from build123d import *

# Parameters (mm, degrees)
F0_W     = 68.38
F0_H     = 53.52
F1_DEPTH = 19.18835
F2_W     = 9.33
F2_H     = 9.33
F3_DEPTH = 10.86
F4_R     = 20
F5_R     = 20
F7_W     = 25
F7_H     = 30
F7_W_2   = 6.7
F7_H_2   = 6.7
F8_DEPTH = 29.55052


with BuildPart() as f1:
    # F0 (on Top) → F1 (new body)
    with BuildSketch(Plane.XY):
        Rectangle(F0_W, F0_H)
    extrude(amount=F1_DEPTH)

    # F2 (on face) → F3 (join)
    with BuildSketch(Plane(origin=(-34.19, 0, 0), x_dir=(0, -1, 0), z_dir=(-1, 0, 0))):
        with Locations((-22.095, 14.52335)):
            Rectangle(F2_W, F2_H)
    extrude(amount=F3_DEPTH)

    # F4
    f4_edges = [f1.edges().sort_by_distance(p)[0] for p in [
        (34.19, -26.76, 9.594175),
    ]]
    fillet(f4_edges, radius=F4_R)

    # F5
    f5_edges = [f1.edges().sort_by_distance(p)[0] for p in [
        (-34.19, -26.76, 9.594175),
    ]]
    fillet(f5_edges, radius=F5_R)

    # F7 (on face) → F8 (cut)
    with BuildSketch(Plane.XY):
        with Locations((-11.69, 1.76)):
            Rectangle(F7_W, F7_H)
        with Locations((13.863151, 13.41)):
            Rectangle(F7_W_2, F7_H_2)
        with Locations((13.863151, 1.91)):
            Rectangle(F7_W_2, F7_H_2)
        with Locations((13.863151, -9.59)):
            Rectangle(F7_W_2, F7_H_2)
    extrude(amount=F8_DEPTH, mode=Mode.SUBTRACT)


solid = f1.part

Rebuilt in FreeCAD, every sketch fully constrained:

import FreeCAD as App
import Part
import Sketcher

V = App.Vector


def edges_at(feature, points):
    """Names of the edges that pass closest to the given points."""
    edges = feature.Shape.Edges
    near = lambda p: min(range(len(edges)), key=lambda i: edges[i].distToShape(Part.Vertex(*p))[0])
    return sorted({f"Edge{near(p) + 1}" for p in points})

doc = App.newDocument("Part")
body = doc.addObject("PartDesign::Body", "Body")

# Sketch on XY plane
sketch1 = body.newObject("Sketcher::SketchObject", "Sketch")
sketch1.AttachmentSupport = (doc.getObject("XY_Plane"), [""])
sketch1.MapMode = "FlatFace"
sketch1.addGeometry(Part.LineSegment(V(-34, 27, 0), V(-34, -27, 0)), False)
sketch1.addGeometry(Part.LineSegment(V(-34, -27, 0), V(34, -27, 0)), False)
sketch1.addGeometry(Part.LineSegment(V(34, -27, 0), V(34, 27, 0)), False)
sketch1.addGeometry(Part.LineSegment(V(34, 27, 0), V(-34, 27, 0)), False)
sketch1.addConstraint(Sketcher.Constraint("Coincident", 0, 2, 1, 1))
sketch1.addConstraint(Sketcher.Constraint("Coincident", 1, 2, 2, 1))
sketch1.addConstraint(Sketcher.Constraint("Coincident", 2, 2, 3, 1))
sketch1.addConstraint(Sketcher.Constraint("Coincident", 3, 2, 0, 1))
sketch1.addConstraint(Sketcher.Constraint("Vertical", 0))
sketch1.addConstraint(Sketcher.Constraint("Horizontal", 1))
sketch1.addConstraint(Sketcher.Constraint("Vertical", 2))
sketch1.addConstraint(Sketcher.Constraint("Horizontal", 3))
sketch1.addConstraint(Sketcher.Constraint("Symmetric", 0, 2, 2, 2, -1, 1))
sketch1.addConstraint(Sketcher.Constraint("DistanceX", 1, 1, 1, 2, 68.38))
sketch1.addConstraint(Sketcher.Constraint("DistanceY", 0, 2, 0, 1, 53.52))
pad1 = body.newObject("PartDesign::Pad", "Pad")
pad1.Profile = sketch1
pad1.Length = 19.18835

# Sketch on YZ plane
sketch2 = body.newObject("Sketcher::SketchObject", "Sketch001")
sketch2.AttachmentSupport = (doc.getObject("YZ_Plane"), [""])
sketch2.MapMode = "FlatFace"
sketch2.AttachmentOffset = App.Placement(V(0, 0, -34.19), App.Rotation())
sketch2.addGeometry(Part.LineSegment(V(27, 19, 0), V(27, 10, 0)), False)
sketch2.addGeometry(Part.LineSegment(V(27, 10, 0), V(17, 10, 0)), False)
sketch2.addGeometry(Part.LineSegment(V(17, 10, 0), V(17, 19, 0)), False)
sketch2.addGeometry(Part.LineSegment(V(17, 19, 0), V(27, 19, 0)), False)
sketch2.addConstraint(Sketcher.Constraint("Coincident", 0, 2, 1, 1))
sketch2.addConstraint(Sketcher.Constraint("Coincident", 1, 2, 2, 1))
sketch2.addConstraint(Sketcher.Constraint("Coincident", 2, 2, 3, 1))
sketch2.addConstraint(Sketcher.Constraint("Coincident", 3, 2, 0, 1))
sketch2.addConstraint(Sketcher.Constraint("Vertical", 0))
sketch2.addConstraint(Sketcher.Constraint("Horizontal", 1))
sketch2.addConstraint(Sketcher.Constraint("Vertical", 2))
sketch2.addConstraint(Sketcher.Constraint("Horizontal", 3))
sketch2.addConstraint(Sketcher.Constraint("Equal", 3, 0))
sketch2.addConstraint(Sketcher.Constraint("DistanceX", 1, 2, 1, 1, 9.33))
sketch2.addConstraint(Sketcher.Constraint("DistanceX", -1, 1, 0, 2, 26.76))
sketch2.addConstraint(Sketcher.Constraint("DistanceY", -1, 1, 0, 2, 9.85835))
pad2 = body.newObject("PartDesign::Pad", "Pad001")
pad2.Profile = sketch2
pad2.Length = 10.86
pad2.Reversed = True
doc.recompute()

fillet = body.newObject("PartDesign::Fillet", "Fillet")
fillet.Base = (pad2, edges_at(pad2, [(34.19, -26.76, 9.594)]))
fillet.Radius = 20
doc.recompute()

fillet2 = body.newObject("PartDesign::Fillet", "Fillet001")
fillet2.Base = (fillet, edges_at(fillet, [(-34.19, -26.76, 9.594)]))
fillet2.Radius = 20

# Sketch on XY plane
sketch3 = body.newObject("Sketcher::SketchObject", "Sketch002")
sketch3.AttachmentSupport = (doc.getObject("XY_Plane"), [""])
sketch3.MapMode = "FlatFace"
sketch3.addGeometry(Part.LineSegment(V(-24, 17, 0), V(-24, -13, 0)), False)
sketch3.addGeometry(Part.LineSegment(V(-24, -13, 0), V(1, -13, 0)), False)
sketch3.addGeometry(Part.LineSegment(V(1, -13, 0), V(1, 17, 0)), False)
sketch3.addGeometry(Part.LineSegment(V(1, 17, 0), V(-24, 17, 0)), False)
sketch3.addGeometry(Part.LineSegment(V(11, 17, 0), V(11, 10, 0)), False)
sketch3.addGeometry(Part.LineSegment(V(11, 10, 0), V(17, 10, 0)), False)
sketch3.addGeometry(Part.LineSegment(V(17, 10, 0), V(17, 17, 0)), False)
sketch3.addGeometry(Part.LineSegment(V(17, 17, 0), V(11, 17, 0)), False)
sketch3.addGeometry(Part.LineSegment(V(11, 5, 0), V(11, -1, 0)), False)
sketch3.addGeometry(Part.LineSegment(V(11, -1, 0), V(17, -1, 0)), False)
sketch3.addGeometry(Part.LineSegment(V(17, -1, 0), V(17, 5, 0)), False)
sketch3.addGeometry(Part.LineSegment(V(17, 5, 0), V(11, 5, 0)), False)
sketch3.addGeometry(Part.LineSegment(V(11, -6, 0), V(11, -13, 0)), False)
sketch3.addGeometry(Part.LineSegment(V(11, -13, 0), V(17, -13, 0)), False)
sketch3.addGeometry(Part.LineSegment(V(17, -13, 0), V(17, -6, 0)), False)
sketch3.addGeometry(Part.LineSegment(V(17, -6, 0), V(11, -6, 0)), False)
sketch3.addConstraint(Sketcher.Constraint("Coincident", 0, 2, 1, 1))
sketch3.addConstraint(Sketcher.Constraint("Coincident", 1, 2, 2, 1))
sketch3.addConstraint(Sketcher.Constraint("Coincident", 2, 2, 3, 1))
sketch3.addConstraint(Sketcher.Constraint("Coincident", 3, 2, 0, 1))
sketch3.addConstraint(Sketcher.Constraint("Coincident", 4, 2, 5, 1))
sketch3.addConstraint(Sketcher.Constraint("Coincident", 5, 2, 6, 1))
sketch3.addConstraint(Sketcher.Constraint("Coincident", 6, 2, 7, 1))
sketch3.addConstraint(Sketcher.Constraint("Coincident", 7, 2, 4, 1))
sketch3.addConstraint(Sketcher.Constraint("Coincident", 8, 2, 9, 1))
sketch3.addConstraint(Sketcher.Constraint("Coincident", 9, 2, 10, 1))
sketch3.addConstraint(Sketcher.Constraint("Coincident", 10, 2, 11, 1))
sketch3.addConstraint(Sketcher.Constraint("Coincident", 11, 2, 8, 1))
sketch3.addConstraint(Sketcher.Constraint("Coincident", 12, 2, 13, 1))
sketch3.addConstraint(Sketcher.Constraint("Coincident", 13, 2, 14, 1))
sketch3.addConstraint(Sketcher.Constraint("Coincident", 14, 2, 15, 1))
sketch3.addConstraint(Sketcher.Constraint("Coincident", 15, 2, 12, 1))
sketch3.addConstraint(Sketcher.Constraint("Vertical", 0))
sketch3.addConstraint(Sketcher.Constraint("Horizontal", 1))
sketch3.addConstraint(Sketcher.Constraint("Vertical", 2))
sketch3.addConstraint(Sketcher.Constraint("Horizontal", 3))
sketch3.addConstraint(Sketcher.Constraint("Vertical", 4))
sketch3.addConstraint(Sketcher.Constraint("Horizontal", 5))
sketch3.addConstraint(Sketcher.Constraint("Vertical", 6))
sketch3.addConstraint(Sketcher.Constraint("Horizontal", 7))
sketch3.addConstraint(Sketcher.Constraint("Vertical", 8))
sketch3.addConstraint(Sketcher.Constraint("Horizontal", 9))
sketch3.addConstraint(Sketcher.Constraint("Vertical", 10))
sketch3.addConstraint(Sketcher.Constraint("Horizontal", 11))
sketch3.addConstraint(Sketcher.Constraint("Vertical", 12))
sketch3.addConstraint(Sketcher.Constraint("Horizontal", 13))
sketch3.addConstraint(Sketcher.Constraint("Vertical", 14))
sketch3.addConstraint(Sketcher.Constraint("Horizontal", 15))
sketch3.addConstraint(Sketcher.Constraint("Horizontal", 3, 2, 6, 2))
sketch3.addConstraint(Sketcher.Constraint("Vertical", 7, 2, 8, 2))
sketch3.addConstraint(Sketcher.Constraint("Vertical", 6, 2, 9, 2))
sketch3.addConstraint(Sketcher.Constraint("Vertical", 11, 2, 12, 2))
sketch3.addConstraint(Sketcher.Constraint("Vertical", 10, 2, 13, 2))
sketch3.addConstraint(Sketcher.Constraint("Equal", 15, 4))
sketch3.addConstraint(Sketcher.Constraint("Equal", 6, 8))
sketch3.addConstraint(Sketcher.Constraint("Equal", 10, 12))
sketch3.addConstraint(Sketcher.Constraint("DistanceX", 1, 1, 1, 2, 25.0))
sketch3.addConstraint(Sketcher.Constraint("DistanceY", 0, 2, 0, 1, 30.0))
sketch3.addConstraint(Sketcher.Constraint("DistanceX", 5, 1, 5, 2, 6.7))
sketch3.addConstraint(Sketcher.Constraint("DistanceY", 8, 2, 4, 2, 11.5))
sketch3.addConstraint(Sketcher.Constraint("DistanceY", 1, 2, 12, 2, 0.3))
sketch3.addConstraint(Sketcher.Constraint("DistanceX", 0, 2, -1, 1, 24.19))
sketch3.addConstraint(Sketcher.Constraint("DistanceY", 0, 2, -1, 1, 13.24))
sketch3.addConstraint(Sketcher.Constraint("DistanceX", -1, 1, 4, 2, 10.513151))
pocket1 = body.newObject("PartDesign::Pocket", "Pocket")
pocket1.Profile = sketch3
pocket1.Length = 29.55052
pocket1.Reversed = True

doc.recompute()
